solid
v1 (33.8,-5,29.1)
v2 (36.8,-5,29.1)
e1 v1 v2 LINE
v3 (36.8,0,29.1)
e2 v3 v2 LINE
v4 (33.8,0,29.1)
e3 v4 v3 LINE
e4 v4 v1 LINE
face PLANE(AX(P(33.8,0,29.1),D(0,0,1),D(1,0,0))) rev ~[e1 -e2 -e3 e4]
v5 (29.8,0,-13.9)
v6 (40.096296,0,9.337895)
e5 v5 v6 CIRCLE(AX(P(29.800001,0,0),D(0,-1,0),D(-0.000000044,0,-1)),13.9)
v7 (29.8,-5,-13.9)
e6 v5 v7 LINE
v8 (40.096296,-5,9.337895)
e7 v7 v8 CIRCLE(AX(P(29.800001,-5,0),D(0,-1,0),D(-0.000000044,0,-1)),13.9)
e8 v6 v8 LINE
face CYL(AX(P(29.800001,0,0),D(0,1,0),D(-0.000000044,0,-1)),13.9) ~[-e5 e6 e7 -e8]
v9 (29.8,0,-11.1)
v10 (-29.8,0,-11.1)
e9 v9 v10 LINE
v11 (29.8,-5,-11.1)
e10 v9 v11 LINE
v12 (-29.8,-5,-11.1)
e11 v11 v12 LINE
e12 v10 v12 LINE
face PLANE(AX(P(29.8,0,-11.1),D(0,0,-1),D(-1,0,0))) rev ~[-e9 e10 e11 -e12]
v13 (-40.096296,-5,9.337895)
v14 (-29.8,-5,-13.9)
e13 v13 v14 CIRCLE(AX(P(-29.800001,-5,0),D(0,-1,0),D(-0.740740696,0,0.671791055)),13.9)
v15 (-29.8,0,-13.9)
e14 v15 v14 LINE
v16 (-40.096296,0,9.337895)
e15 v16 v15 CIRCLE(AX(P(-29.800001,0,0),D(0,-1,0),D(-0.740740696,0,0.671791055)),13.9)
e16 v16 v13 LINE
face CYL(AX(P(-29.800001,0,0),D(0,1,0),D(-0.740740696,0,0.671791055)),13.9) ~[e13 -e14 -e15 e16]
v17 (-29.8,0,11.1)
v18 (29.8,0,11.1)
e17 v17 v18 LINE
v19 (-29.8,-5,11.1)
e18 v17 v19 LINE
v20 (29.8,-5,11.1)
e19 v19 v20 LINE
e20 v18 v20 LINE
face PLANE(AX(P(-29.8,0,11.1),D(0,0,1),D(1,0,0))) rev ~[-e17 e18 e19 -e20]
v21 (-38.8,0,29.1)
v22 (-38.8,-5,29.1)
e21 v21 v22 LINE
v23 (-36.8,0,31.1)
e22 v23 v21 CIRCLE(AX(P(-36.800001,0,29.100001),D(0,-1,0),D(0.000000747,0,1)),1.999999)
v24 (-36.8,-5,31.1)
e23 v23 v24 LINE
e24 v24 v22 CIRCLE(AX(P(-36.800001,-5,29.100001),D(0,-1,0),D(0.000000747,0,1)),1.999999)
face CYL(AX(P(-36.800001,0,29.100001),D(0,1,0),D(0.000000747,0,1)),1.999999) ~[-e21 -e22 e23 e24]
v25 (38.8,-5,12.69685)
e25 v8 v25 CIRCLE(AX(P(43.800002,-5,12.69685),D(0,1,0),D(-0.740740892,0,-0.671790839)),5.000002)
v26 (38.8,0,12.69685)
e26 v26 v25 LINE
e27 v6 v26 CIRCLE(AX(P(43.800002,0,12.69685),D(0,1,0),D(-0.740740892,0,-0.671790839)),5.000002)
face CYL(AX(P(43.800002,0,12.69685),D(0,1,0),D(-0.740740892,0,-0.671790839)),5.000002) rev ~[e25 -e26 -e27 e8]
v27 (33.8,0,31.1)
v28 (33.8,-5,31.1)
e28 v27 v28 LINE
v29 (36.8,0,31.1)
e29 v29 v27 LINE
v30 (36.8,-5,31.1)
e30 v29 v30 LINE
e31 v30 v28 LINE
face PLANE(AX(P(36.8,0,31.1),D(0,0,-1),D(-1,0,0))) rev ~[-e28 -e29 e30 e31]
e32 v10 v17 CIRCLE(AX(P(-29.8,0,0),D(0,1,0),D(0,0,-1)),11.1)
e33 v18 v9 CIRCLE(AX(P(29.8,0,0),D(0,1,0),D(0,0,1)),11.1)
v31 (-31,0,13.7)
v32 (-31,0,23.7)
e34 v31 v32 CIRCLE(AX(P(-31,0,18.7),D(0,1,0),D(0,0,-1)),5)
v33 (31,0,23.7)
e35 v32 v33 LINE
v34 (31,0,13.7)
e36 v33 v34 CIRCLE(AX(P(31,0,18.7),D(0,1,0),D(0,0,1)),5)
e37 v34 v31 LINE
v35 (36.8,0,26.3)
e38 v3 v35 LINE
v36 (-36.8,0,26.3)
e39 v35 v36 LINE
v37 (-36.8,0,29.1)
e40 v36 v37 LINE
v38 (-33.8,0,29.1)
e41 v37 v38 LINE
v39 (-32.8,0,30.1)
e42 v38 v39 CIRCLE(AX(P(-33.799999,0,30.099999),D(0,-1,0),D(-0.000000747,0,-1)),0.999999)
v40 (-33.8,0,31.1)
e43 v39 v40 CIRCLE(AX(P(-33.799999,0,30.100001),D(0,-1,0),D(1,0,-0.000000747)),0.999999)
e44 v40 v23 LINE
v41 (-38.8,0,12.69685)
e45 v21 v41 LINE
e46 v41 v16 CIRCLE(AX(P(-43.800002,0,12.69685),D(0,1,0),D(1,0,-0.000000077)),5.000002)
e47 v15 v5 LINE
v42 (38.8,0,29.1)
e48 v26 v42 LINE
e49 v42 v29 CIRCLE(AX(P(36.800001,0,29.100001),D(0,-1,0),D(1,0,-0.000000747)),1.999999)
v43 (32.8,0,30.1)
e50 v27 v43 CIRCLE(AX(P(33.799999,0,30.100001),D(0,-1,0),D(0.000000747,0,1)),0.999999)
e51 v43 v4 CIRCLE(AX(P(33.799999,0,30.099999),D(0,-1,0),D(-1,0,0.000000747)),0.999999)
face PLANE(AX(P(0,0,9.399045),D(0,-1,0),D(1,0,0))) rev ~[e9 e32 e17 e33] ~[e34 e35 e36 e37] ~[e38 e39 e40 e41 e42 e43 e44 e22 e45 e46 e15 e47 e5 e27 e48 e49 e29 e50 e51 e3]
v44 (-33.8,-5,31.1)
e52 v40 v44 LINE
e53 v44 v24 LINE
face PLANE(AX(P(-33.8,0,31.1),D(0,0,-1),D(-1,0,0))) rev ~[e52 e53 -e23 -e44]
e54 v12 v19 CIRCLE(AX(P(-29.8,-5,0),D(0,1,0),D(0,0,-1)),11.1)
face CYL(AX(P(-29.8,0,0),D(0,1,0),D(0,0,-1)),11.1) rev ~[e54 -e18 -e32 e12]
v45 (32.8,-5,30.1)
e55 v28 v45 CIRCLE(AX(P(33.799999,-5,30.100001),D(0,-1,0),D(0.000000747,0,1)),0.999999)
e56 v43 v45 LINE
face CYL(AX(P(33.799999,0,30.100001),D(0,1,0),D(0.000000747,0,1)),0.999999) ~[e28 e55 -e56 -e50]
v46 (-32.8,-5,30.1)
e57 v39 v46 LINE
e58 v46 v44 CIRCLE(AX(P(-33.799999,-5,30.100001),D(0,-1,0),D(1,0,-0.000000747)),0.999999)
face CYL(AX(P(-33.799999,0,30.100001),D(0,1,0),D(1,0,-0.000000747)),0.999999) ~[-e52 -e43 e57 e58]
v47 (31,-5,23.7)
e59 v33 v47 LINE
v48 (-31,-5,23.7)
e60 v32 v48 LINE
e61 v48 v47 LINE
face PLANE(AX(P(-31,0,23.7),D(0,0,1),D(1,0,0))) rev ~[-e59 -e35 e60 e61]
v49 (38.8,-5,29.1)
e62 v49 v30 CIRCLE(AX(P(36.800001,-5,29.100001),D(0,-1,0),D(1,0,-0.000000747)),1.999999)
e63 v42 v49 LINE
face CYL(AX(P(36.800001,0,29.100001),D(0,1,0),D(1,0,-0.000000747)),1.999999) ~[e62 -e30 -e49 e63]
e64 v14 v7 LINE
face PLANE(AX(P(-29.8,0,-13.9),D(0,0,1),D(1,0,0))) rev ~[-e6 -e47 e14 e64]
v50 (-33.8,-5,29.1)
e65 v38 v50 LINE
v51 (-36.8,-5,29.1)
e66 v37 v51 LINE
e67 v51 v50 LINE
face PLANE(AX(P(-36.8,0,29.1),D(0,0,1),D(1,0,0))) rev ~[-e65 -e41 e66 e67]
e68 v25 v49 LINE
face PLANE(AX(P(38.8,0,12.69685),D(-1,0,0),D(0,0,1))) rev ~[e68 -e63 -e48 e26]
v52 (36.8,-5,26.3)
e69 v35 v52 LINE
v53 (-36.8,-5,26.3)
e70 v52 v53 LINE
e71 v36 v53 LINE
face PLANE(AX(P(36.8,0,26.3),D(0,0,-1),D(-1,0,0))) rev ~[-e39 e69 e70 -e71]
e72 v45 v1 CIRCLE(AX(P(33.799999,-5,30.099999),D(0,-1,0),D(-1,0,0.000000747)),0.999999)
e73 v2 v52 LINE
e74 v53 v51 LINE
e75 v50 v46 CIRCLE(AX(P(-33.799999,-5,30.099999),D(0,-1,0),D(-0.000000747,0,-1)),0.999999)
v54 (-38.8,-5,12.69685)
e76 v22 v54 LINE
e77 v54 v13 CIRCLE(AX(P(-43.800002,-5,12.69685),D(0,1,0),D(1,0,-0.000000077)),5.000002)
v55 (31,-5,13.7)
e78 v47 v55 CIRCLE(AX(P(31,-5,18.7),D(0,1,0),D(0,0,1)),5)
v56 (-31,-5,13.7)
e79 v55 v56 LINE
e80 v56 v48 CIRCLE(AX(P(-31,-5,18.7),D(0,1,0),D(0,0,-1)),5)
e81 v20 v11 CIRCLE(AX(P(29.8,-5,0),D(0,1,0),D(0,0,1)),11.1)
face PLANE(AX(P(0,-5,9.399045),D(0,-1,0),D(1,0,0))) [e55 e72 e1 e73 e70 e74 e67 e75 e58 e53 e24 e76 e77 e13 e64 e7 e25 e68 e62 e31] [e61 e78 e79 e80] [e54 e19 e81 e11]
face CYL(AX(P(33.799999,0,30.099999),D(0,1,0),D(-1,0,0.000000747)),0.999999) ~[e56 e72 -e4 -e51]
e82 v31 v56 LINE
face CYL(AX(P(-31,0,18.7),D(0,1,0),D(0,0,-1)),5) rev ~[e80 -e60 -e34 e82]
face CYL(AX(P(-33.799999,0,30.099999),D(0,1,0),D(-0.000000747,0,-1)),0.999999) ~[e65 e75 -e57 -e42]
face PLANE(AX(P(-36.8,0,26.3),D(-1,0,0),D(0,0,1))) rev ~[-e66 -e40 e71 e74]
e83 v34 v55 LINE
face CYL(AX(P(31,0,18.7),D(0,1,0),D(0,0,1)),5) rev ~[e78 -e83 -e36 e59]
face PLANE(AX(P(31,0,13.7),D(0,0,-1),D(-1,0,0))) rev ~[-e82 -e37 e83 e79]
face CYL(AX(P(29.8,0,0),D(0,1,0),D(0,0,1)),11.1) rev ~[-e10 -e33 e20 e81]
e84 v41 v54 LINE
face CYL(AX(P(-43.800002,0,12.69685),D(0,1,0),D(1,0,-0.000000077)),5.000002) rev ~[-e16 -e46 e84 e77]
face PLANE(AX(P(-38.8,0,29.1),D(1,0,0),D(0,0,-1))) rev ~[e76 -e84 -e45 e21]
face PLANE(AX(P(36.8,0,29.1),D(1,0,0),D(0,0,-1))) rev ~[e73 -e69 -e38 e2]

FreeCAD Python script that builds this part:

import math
import FreeCAD as App
import Part
import Sketcher
Q = App.Units.Quantity

doc = App.newDocument("Part")
body = doc.addObject("PartDesign::Body", "Body")

# Sketch on XZ plane
sketch1 = doc.addObject("Sketcher::SketchObject", "Sketch")
body.addObject(sketch1)
sketch1.AttachmentSupport = (doc.XZ_Plane, [""])
sketch1.MapMode = "FlatFace"
sketch1.addGeometry([
    Part.LineSegment(App.Vector(-29.8, -13.9, 0), App.Vector(29.8, -13.9, 0)),  # 0
    Part.ArcOfCircle(Part.Circle(App.Vector(29.8, 0, 0), App.Vector(0, 0, 1), 13.9), math.radians(-90), math.radians(42)),  # 1
    Part.ArcOfCircle(Part.Circle(App.Vector(43.8, 12.7, 0), App.Vector(0, 0, 1), 5), math.radians(-180), math.radians(-138)),  # 2
    Part.LineSegment(App.Vector(38.8, 12.7, 0), App.Vector(38.8, 29.1, 0)),  # 3
    Part.ArcOfCircle(Part.Circle(App.Vector(36.8, 29.1, 0), App.Vector(0, 0, 1), 2), math.radians(0), math.radians(90)),  # 4
    Part.LineSegment(App.Vector(36.8, 31.1, 0), App.Vector(33.8, 31.1, 0)),  # 5
    Part.ArcOfCircle(Part.Circle(App.Vector(33.8, 30.1, 0), App.Vector(0, 0, 1), 1), math.radians(90), math.radians(180)),  # 6
    Part.ArcOfCircle(Part.Circle(App.Vector(33.8, 30.1, 0), App.Vector(0, 0, 1), 1), math.radians(180), math.radians(270)),  # 7
    Part.LineSegment(App.Vector(33.8, 29.1, 0), App.Vector(36.8, 29.1, 0)),  # 8
    Part.LineSegment(App.Vector(36.8, 29.1, 0), App.Vector(36.8, 26.3, 0)),  # 9
    Part.LineSegment(App.Vector(36.8, 26.3, 0), App.Vector(-36.8, 26.3, 0)),  # 10
    Part.LineSegment(App.Vector(-36.8, 26.3, 0), App.Vector(-36.8, 29.1, 0)),  # 11
    Part.LineSegment(App.Vector(-36.8, 29.1, 0), App.Vector(-33.8, 29.1, 0)),  # 12
    Part.ArcOfCircle(Part.Circle(App.Vector(-33.8, 30.1, 0), App.Vector(0, 0, 1), 1), math.radians(-90), math.radians(0)),  # 13
    Part.ArcOfCircle(Part.Circle(App.Vector(-33.8, 30.1, 0), App.Vector(0, 0, 1), 1), math.radians(0), math.radians(90)),  # 14
    Part.LineSegment(App.Vector(-33.8, 31.1, 0), App.Vector(-36.8, 31.1, 0)),  # 15
    Part.ArcOfCircle(Part.Circle(App.Vector(-36.8, 29.1, 0), App.Vector(0, 0, 1), 2), math.radians(90), math.radians(180)),  # 16
    Part.LineSegment(App.Vector(-38.8, 29.1, 0), App.Vector(-38.8, 12.7, 0)),  # 17
    Part.ArcOfCircle(Part.Circle(App.Vector(-43.8, 12.7, 0), App.Vector(0, 0, 1), 5), math.radians(-42), math.radians(0)),  # 18
    Part.ArcOfCircle(Part.Circle(App.Vector(-29.8, 0, 0), App.Vector(0, 0, 1), 13.9), math.radians(138), math.radians(270)),  # 19
    Part.LineSegment(App.Vector(-29.8, 11.1, 0), App.Vector(29.8, 11.1, 0)),  # 20
    Part.ArcOfCircle(Part.Circle(App.Vector(29.8, 0, 0), App.Vector(0, 0, 1), 11.1), math.radians(-90), math.radians(90)),  # 21
    Part.LineSegment(App.Vector(29.8, -11.1, 0), App.Vector(-29.8, -11.1, 0)),  # 22
    Part.ArcOfCircle(Part.Circle(App.Vector(-29.8, 0, 0), App.Vector(0, 0, 1), 11.1), math.radians(90), math.radians(270)),  # 23
    Part.LineSegment(App.Vector(31, 13.7, 0), App.Vector(-31, 13.7, 0)),  # 24
    Part.ArcOfCircle(Part.Circle(App.Vector(-31, 18.7, 0), App.Vector(0, 0, 1), 5), math.radians(90), math.radians(270)),  # 25
    Part.LineSegment(App.Vector(-31, 23.7, 0), App.Vector(31, 23.7, 0)),  # 26
    Part.ArcOfCircle(Part.Circle(App.Vector(31, 18.7, 0), App.Vector(0, 0, 1), 5), math.radians(-90), math.radians(90)),  # 27
], False)
sketch1.addConstraint([
    Sketcher.Constraint("Tangent", 0, 2, 1, 1),
    Sketcher.Constraint("Tangent", 1, 2, 2, 2),
    Sketcher.Constraint("Tangent", 2, 1, 3, 1),
    Sketcher.Constraint("Tangent", 3, 2, 4, 1),
    Sketcher.Constraint("Tangent", 4, 2, 5, 1),
    Sketcher.Constraint("Tangent", 5, 2, 6, 1),
    Sketcher.Constraint("Tangent", 6, 2, 7, 1),
    Sketcher.Constraint("Tangent", 7, 2, 8, 1),
    Sketcher.Constraint("Coincident", 8, 2, 9, 1),
    Sketcher.Constraint("Coincident", 9, 2, 10, 1),
    Sketcher.Constraint("Coincident", 10, 2, 11, 1),
    Sketcher.Constraint("Coincident", 11, 2, 12, 1),
    Sketcher.Constraint("Tangent", 12, 2, 13, 1),
    Sketcher.Constraint("Tangent", 13, 2, 14, 1),
    Sketcher.Constraint("Tangent", 14, 2, 15, 1),
    Sketcher.Constraint("Tangent", 15, 2, 16, 1),
    Sketcher.Constraint("Tangent", 16, 2, 17, 1),
    Sketcher.Constraint("Tangent", 17, 2, 18, 2),
    Sketcher.Constraint("Tangent", 18, 1, 19, 1),
    Sketcher.Constraint("Tangent", 19, 2, 0, 1),
    Sketcher.Constraint("Tangent", 20, 2, 21, 2),
    Sketcher.Constraint("Tangent", 21, 1, 22, 1),
    Sketcher.Constraint("Tangent", 22, 2, 23, 2),
    Sketcher.Constraint("Tangent", 23, 1, 20, 1),
    Sketcher.Constraint("Tangent", 24, 2, 25, 2),
    Sketcher.Constraint("Tangent", 25, 1, 26, 1),
    Sketcher.Constraint("Tangent", 26, 2, 27, 2),
    Sketcher.Constraint("Tangent", 27, 1, 24, 1),
    Sketcher.Constraint("Horizontal", 0),
    Sketcher.Constraint("Vertical", 3),
    Sketcher.Constraint("Horizontal", 5),
    Sketcher.Constraint("Horizontal", 8),
    Sketcher.Constraint("Vertical", 9),
    Sketcher.Constraint("Horizontal", 10),
    Sketcher.Constraint("Vertical", 11),
    Sketcher.Constraint("Horizontal", 12),
    Sketcher.Constraint("Horizontal", 15),
    Sketcher.Constraint("Vertical", 17),
    Sketcher.Constraint("Horizontal", 20),
    Sketcher.Constraint("Horizontal", 22),
    Sketcher.Constraint("Horizontal", 24),
    Sketcher.Constraint("Horizontal", 26),
    Sketcher.Constraint("Coincident", 21, 3, 1, 3),
    Sketcher.Constraint("Coincident", 23, 3, 19, 3),
    Sketcher.Constraint("Coincident", 8, 2, 4, 3),
    Sketcher.Constraint("Coincident", 11, 2, 16, 3),
    Sketcher.Constraint("Equal", 6, 7),
    Sketcher.Constraint("Equal", 7, 13),
    Sketcher.Constraint("Equal", 13, 14),
    Sketcher.Constraint("Equal", 2, 18),
    Sketcher.Constraint("Equal", 18, 25),
    Sketcher.Constraint("Symmetric", 1, 3, 19, 3, -1, 1),
    Sketcher.Constraint("Symmetric", 6, 3, 13, 3, -2),
    Sketcher.Constraint("Horizontal", 2, 3, 18, 3),
    Sketcher.Constraint("Horizontal", 14, 3, 6, 2),
    Sketcher.Constraint("Horizontal", 6, 2, 13, 2),
    Sketcher.Constraint("Radius", 2, Q("5.000002 mm")),
    Sketcher.Constraint("Radius", 4, Q("1.999999 mm")),
    Sketcher.Constraint("Radius", 1, Q("13.9 mm")),
    Sketcher.Constraint("Radius", 21, Q("11.1 mm")),
    Sketcher.Constraint("DistanceX", 5, 2, 5, 1, Q("3 mm")),
    Sketcher.Constraint("DistanceX", 24, 2, 24, 1, Q("62 mm")),
    Sketcher.Constraint("DistanceX", 0, 1, 0, 2, Q("59.6 mm")),
    Sketcher.Constraint("DistanceX", 10, 2, 10, 1, Q("73.6 mm")),
    Sketcher.Constraint("DistanceY", 9, 2, 9, 1, Q("2.8 mm")),
    Sketcher.Constraint("DistanceX", 25, 3, -1, 1, Q("31 mm")),
    Sketcher.Constraint("DistanceY", 0, 2, 4, 3, Q("43.000001 mm")),
    Sketcher.Constraint("DistanceY", -1, 1, 25, 3, Q("18.7 mm")),
])
pad1 = doc.addObject("PartDesign::Pad", "Pad")
body.addObject(pad1)
pad1.Profile = sketch1
pad1.Length = 5

doc.recompute()
